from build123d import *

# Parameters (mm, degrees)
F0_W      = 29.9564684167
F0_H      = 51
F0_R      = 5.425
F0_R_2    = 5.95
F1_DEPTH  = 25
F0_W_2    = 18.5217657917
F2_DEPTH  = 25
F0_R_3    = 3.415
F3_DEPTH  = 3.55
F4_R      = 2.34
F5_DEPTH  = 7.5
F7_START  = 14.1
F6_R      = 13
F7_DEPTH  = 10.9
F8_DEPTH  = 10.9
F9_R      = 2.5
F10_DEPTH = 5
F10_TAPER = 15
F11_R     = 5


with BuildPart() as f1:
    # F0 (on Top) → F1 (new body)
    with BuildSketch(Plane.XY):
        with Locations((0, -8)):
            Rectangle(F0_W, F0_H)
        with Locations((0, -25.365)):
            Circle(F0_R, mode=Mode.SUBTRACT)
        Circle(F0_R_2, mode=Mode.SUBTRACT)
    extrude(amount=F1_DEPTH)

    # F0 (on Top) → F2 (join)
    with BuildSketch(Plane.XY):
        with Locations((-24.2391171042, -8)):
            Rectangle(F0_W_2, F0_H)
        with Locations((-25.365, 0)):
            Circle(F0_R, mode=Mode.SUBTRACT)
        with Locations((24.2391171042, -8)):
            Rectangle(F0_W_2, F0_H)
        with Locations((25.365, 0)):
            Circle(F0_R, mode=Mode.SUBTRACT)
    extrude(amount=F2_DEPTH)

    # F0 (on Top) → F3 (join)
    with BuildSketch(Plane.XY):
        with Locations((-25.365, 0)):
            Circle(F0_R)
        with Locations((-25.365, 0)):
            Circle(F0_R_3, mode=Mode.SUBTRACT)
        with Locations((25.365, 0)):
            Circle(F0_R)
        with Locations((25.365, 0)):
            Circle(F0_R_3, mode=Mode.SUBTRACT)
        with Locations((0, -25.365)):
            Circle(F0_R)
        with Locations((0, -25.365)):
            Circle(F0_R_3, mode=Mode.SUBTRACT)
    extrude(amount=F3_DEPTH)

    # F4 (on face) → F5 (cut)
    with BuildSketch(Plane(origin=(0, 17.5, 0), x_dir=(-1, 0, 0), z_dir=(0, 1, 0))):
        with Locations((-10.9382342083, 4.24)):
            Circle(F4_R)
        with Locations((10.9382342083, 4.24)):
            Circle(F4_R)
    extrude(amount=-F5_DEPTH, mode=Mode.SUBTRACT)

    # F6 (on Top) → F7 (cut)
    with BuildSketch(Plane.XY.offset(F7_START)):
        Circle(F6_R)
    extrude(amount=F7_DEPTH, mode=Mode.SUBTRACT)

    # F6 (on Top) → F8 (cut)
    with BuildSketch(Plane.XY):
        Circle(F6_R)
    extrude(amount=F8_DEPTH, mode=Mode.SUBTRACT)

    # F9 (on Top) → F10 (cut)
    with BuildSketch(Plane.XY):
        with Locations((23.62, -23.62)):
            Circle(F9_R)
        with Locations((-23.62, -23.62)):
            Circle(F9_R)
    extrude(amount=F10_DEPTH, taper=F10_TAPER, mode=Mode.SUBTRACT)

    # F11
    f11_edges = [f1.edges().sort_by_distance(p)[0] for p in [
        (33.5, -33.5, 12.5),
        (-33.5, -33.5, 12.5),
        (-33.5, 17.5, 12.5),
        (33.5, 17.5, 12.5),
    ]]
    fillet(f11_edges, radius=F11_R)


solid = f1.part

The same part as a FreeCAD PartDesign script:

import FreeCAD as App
import Part
import Sketcher
Q = App.Units.Quantity


def edges_at(feature, points):
    """Names of the edges that pass closest to the given points."""
    edges = feature.Shape.Edges
    near = lambda p: min(range(len(edges)), key=lambda i: edges[i].distToShape(Part.Vertex(*p))[0])
    return sorted({f"Edge{near(p) + 1}" for p in points})


def add_polygon(sketch, points):
    """Adds a closed chain of lines whose ends are joined by coincident constraints."""
    first, n = sketch.GeometryCount, len(points)
    for a, b in zip(points, points[1:] + points[:1]):
        sketch.addGeometry(Part.LineSegment(App.Vector(*a, 0), App.Vector(*b, 0)), False)
    for i in range(n):
        sketch.addConstraint(Sketcher.Constraint("Coincident", first + i, 2, first + (i + 1) % n, 1))

doc = App.newDocument("Part")
body = doc.addObject("PartDesign::Body", "Body")

# Sketch on XY plane
sketch1 = body.newObject("Sketcher::SketchObject", "Sketch")
sketch1.AttachmentSupport = (doc.getObject("XY_Plane"), [""])
sketch1.MapMode = "FlatFace"
add_polygon(sketch1, [(-15, 18), (-15, -34), (15, -34), (15, 18)])  # lines 0-3
sketch1.addGeometry(Part.Circle(App.Vector(0, -25, 0), App.Vector(0, 0, 1), 5), False)  # 4
sketch1.addGeometry(Part.Circle(App.Vector(0, 0, 0), App.Vector(0, 0, 1), 6), False)  # 5
sketch1.addConstraint([
    Sketcher.Constraint("Vertical", 0),
    Sketcher.Constraint("Horizontal", 1),
    Sketcher.Constraint("Vertical", 2),
    Sketcher.Constraint("Horizontal", 3),
    Sketcher.Constraint("Coincident", 5, 3, -1, 1),
    Sketcher.Constraint("PointOnObject", 4, 3, -2),
    Sketcher.Constraint("Diameter", 5, Q("11.9 mm")),
    Sketcher.Constraint("Diameter", 4, Q("10.85 mm")),
    Sketcher.Constraint("DistanceY", 0, 2, 0, 1, Q("51 mm")),
    Sketcher.Constraint("DistanceY", 0, 2, -1, 1, Q("33.5 mm")),
    Sketcher.Constraint("DistanceY", 4, 3, -1, 1, Q("25.365 mm")),
    Sketcher.Constraint("DistanceX", 1, 1, 1, 2, Q("29.956468 mm")),
    Sketcher.Constraint("DistanceX", 0, 2, -1, 1, Q("14.978234 mm")),
])
pad1 = body.newObject("PartDesign::Pad", "Pad")
pad1.Profile = sketch1
pad1.Length = 25

# Sketch on XY plane
sketch2 = body.newObject("Sketcher::SketchObject", "Sketch001")
sketch2.AttachmentSupport = (doc.getObject("XY_Plane"), [""])
sketch2.MapMode = "FlatFace"
add_polygon(sketch2, [(-34, 18), (-34, -34), (-15, -34), (-15, 18)])  # lines 0-3
sketch2.addGeometry(Part.Circle(App.Vector(-25, 0, 0), App.Vector(0, 0, 1), 5), False)  # 4
add_polygon(sketch2, [(15, 18), (15, -34), (34, -34), (34, 18)])  # lines 5-8
sketch2.addGeometry(Part.Circle(App.Vector(25, 0, 0), App.Vector(0, 0, 1), 5), False)  # 9
sketch2.addConstraint([
    Sketcher.Constraint("Vertical", 0),
    Sketcher.Constraint("Horizontal", 1),
    Sketcher.Constraint("Vertical", 2),
    Sketcher.Constraint("Horizontal", 3),
    Sketcher.Constraint("Vertical", 5),
    Sketcher.Constraint("Horizontal", 6),
    Sketcher.Constraint("Vertical", 7),
    Sketcher.Constraint("Horizontal", 8),
    Sketcher.Constraint("Equal", 4, 9),
    Sketcher.Constraint("Symmetric", 4, 3, 9, 3, -1, 1),
    Sketcher.Constraint("Symmetric", 1, 2, 5, 2, -2),
    Sketcher.Constraint("Symmetric", 3, 2, 7, 2, -2),
    Sketcher.Constraint("PointOnObject", 4, 3, -1),
    Sketcher.Constraint("Diameter", 4, Q("10.85 mm")),
    Sketcher.Constraint("DistanceY", 0, 2, 0, 1, Q("51 mm")),
    Sketcher.Constraint("DistanceX", 0, 2, 6, 2, Q("67 mm")),
    Sketcher.Constraint("DistanceY", 0, 2, -1, 1, Q("33.5 mm")),
    Sketcher.Constraint("DistanceX", 4, 3, 9, 3, Q("50.73 mm")),
    Sketcher.Constraint("DistanceX", 1, 1, 1, 2, Q("18.521766 mm")),
])
pad2 = body.newObject("PartDesign::Pad", "Pad001")
pad2.Profile = sketch2
pad2.Length = 25

# Sketch on XY plane
sketch3 = body.newObject("Sketcher::SketchObject", "Sketch002")
sketch3.AttachmentSupport = (doc.getObject("XY_Plane"), [""])
sketch3.MapMode = "FlatFace"
sketch3.addGeometry([
    Part.Circle(App.Vector(-25.4, 0, 0), App.Vector(0, 0, 1), 5.4),  # 0
    Part.Circle(App.Vector(-25.4, 0, 0), App.Vector(0, 0, 1), 3.4),  # 1
    Part.Circle(App.Vector(25.4, 0, 0), App.Vector(0, 0, 1), 5.4),  # 2
    Part.Circle(App.Vector(25.4, 0, 0), App.Vector(0, 0, 1), 3.4),  # 3
    Part.Circle(App.Vector(0, -25.4, 0), App.Vector(0, 0, 1), 5.4),  # 4
    Part.Circle(App.Vector(0, -25.4, 0), App.Vector(0, 0, 1), 3.4),  # 5
], False)
sketch3.addConstraint([
    Sketcher.Constraint("Coincident", 1, 3, 0, 3),
    Sketcher.Constraint("Coincident", 3, 3, 2, 3),
    Sketcher.Constraint("Coincident", 5, 3, 4, 3),
    Sketcher.Constraint("Equal", 0, 2),
    Sketcher.Constraint("Equal", 1, 3),
    Sketcher.Constraint("Equal", 2, 4),
    Sketcher.Constraint("Equal", 3, 5),
    Sketcher.Constraint("Symmetric", 0, 3, 2, 3, -1, 1),
    Sketcher.Constraint("PointOnObject", 0, 3, -1),
    Sketcher.Constraint("PointOnObject", 4, 3, -2),
    Sketcher.Constraint("Diameter", 0, Q("10.85 mm")),
    Sketcher.Constraint("Diameter", 1, Q("6.83 mm")),
    Sketcher.Constraint("DistanceX", 0, 3, 2, 3, Q("50.73 mm")),
    Sketcher.Constraint("DistanceY", 4, 3, -1, 1, Q("25.365 mm")),
])
pad3 = body.newObject("PartDesign::Pad", "Pad002")
pad3.Profile = sketch3
pad3.Length = 3.55

# Sketch on XZ plane
sketch4 = body.newObject("Sketcher::SketchObject", "Sketch003")
sketch4.AttachmentSupport = (doc.getObject("XZ_Plane"), [""])
sketch4.MapMode = "FlatFace"
sketch4.AttachmentOffset = App.Placement(App.Vector(0, 0, -17.5), App.Rotation())
sketch4.addGeometry([
    Part.Circle(App.Vector(10.9, 4.2, 0), App.Vector(0, 0, 1), 2.3),
    Part.Circle(App.Vector(-10.9, 4.2, 0), App.Vector(0, 0, 1), 2.3),
], False)
sketch4.addConstraint([
    Sketcher.Constraint("Equal", 0, 1),
    Sketcher.Constraint("Symmetric", 0, 3, 1, 3, -2),
    Sketcher.Constraint("Diameter", 0, Q("4.68 mm")),
    Sketcher.Constraint("DistanceY", -1, 1, 0, 3, Q("4.24 mm")),
    Sketcher.Constraint("DistanceX", 1, 3, 0, 3, Q("21.876468 mm")),
])
pocket1 = body.newObject("PartDesign::Pocket", "Pocket")
pocket1.Profile = sketch4
pocket1.Length = 7.5
pocket1.Reversed = True

# Sketch on XY plane
sketch5 = body.newObject("Sketcher::SketchObject", "Sketch004")
sketch5.AttachmentSupport = (doc.getObject("XY_Plane"), [""])
sketch5.MapMode = "FlatFace"
sketch5.AttachmentOffset = App.Placement(App.Vector(0, 0, 14.1), App.Rotation())
sketch5.addGeometry(Part.Circle(App.Vector(0, 0, 0), App.Vector(0, 0, 1), 13), False)
sketch5.addConstraint([
    Sketcher.Constraint("Coincident", 0, 3, -1, 1),
    Sketcher.Constraint("Diameter", 0, Q("26 mm")),
])
pocket2 = body.newObject("PartDesign::Pocket", "Pocket001")
pocket2.Profile = sketch5
pocket2.Length = 10.9
pocket2.Reversed = True

# Sketch on XY plane
sketch6 = body.newObject("Sketcher::SketchObject", "Sketch005")
sketch6.AttachmentSupport = (doc.getObject("XY_Plane"), [""])
sketch6.MapMode = "FlatFace"
sketch6.addGeometry(Part.Circle(App.Vector(0, 0, 0), App.Vector(0, 0, 1), 13), False)
sketch6.addConstraint([
    Sketcher.Constraint("Coincident", 0, 3, -1, 1),
    Sketcher.Constraint("Diameter", 0, Q("26 mm")),
])
pocket3 = body.newObject("PartDesign::Pocket", "Pocket002")
pocket3.Profile = sketch6
pocket3.Length = 10.9
pocket3.Reversed = True

# Sketch on XY plane
sketch7 = body.newObject("Sketcher::SketchObject", "Sketch006")
sketch7.AttachmentSupport = (doc.getObject("XY_Plane"), [""])
sketch7.MapMode = "FlatFace"
sketch7.addGeometry([
    Part.Circle(App.Vector(23.6, -23.6, 0), App.Vector(0, 0, 1), 2.5),
    Part.Circle(App.Vector(-23.6, -23.6, 0), App.Vector(0, 0, 1), 2.5),
], False)
sketch7.addConstraint([
    Sketcher.Constraint("Equal", 0, 1),
    Sketcher.Constraint("Symmetric", 0, 3, 1, 3, -2),
    Sketcher.Constraint("Diameter", 0, Q("5 mm")),
    Sketcher.Constraint("DistanceX", -1, 1, 0, 3, Q("23.62 mm")),
    Sketcher.Constraint("DistanceY", 0, 3, -1, 1, Q("23.62 mm")),
])
pocket4 = body.newObject("PartDesign::Pocket", "Pocket003")
pocket4.Profile = sketch7
pocket4.Length = 5
pocket4.Reversed = True
pocket4.TaperAngle = -15
doc.recompute()

fillet = body.newObject("PartDesign::Fillet", "Fillet")
fillet.Base = (pocket4, edges_at(pocket4, [
    (33.5, -33.5, 12.5),
    (-33.5, -33.5, 12.5),
    (-33.5, 17.5, 12.5),
    (33.5, 17.5, 12.5),
]))
fillet.Radius = 5

doc.recompute()
